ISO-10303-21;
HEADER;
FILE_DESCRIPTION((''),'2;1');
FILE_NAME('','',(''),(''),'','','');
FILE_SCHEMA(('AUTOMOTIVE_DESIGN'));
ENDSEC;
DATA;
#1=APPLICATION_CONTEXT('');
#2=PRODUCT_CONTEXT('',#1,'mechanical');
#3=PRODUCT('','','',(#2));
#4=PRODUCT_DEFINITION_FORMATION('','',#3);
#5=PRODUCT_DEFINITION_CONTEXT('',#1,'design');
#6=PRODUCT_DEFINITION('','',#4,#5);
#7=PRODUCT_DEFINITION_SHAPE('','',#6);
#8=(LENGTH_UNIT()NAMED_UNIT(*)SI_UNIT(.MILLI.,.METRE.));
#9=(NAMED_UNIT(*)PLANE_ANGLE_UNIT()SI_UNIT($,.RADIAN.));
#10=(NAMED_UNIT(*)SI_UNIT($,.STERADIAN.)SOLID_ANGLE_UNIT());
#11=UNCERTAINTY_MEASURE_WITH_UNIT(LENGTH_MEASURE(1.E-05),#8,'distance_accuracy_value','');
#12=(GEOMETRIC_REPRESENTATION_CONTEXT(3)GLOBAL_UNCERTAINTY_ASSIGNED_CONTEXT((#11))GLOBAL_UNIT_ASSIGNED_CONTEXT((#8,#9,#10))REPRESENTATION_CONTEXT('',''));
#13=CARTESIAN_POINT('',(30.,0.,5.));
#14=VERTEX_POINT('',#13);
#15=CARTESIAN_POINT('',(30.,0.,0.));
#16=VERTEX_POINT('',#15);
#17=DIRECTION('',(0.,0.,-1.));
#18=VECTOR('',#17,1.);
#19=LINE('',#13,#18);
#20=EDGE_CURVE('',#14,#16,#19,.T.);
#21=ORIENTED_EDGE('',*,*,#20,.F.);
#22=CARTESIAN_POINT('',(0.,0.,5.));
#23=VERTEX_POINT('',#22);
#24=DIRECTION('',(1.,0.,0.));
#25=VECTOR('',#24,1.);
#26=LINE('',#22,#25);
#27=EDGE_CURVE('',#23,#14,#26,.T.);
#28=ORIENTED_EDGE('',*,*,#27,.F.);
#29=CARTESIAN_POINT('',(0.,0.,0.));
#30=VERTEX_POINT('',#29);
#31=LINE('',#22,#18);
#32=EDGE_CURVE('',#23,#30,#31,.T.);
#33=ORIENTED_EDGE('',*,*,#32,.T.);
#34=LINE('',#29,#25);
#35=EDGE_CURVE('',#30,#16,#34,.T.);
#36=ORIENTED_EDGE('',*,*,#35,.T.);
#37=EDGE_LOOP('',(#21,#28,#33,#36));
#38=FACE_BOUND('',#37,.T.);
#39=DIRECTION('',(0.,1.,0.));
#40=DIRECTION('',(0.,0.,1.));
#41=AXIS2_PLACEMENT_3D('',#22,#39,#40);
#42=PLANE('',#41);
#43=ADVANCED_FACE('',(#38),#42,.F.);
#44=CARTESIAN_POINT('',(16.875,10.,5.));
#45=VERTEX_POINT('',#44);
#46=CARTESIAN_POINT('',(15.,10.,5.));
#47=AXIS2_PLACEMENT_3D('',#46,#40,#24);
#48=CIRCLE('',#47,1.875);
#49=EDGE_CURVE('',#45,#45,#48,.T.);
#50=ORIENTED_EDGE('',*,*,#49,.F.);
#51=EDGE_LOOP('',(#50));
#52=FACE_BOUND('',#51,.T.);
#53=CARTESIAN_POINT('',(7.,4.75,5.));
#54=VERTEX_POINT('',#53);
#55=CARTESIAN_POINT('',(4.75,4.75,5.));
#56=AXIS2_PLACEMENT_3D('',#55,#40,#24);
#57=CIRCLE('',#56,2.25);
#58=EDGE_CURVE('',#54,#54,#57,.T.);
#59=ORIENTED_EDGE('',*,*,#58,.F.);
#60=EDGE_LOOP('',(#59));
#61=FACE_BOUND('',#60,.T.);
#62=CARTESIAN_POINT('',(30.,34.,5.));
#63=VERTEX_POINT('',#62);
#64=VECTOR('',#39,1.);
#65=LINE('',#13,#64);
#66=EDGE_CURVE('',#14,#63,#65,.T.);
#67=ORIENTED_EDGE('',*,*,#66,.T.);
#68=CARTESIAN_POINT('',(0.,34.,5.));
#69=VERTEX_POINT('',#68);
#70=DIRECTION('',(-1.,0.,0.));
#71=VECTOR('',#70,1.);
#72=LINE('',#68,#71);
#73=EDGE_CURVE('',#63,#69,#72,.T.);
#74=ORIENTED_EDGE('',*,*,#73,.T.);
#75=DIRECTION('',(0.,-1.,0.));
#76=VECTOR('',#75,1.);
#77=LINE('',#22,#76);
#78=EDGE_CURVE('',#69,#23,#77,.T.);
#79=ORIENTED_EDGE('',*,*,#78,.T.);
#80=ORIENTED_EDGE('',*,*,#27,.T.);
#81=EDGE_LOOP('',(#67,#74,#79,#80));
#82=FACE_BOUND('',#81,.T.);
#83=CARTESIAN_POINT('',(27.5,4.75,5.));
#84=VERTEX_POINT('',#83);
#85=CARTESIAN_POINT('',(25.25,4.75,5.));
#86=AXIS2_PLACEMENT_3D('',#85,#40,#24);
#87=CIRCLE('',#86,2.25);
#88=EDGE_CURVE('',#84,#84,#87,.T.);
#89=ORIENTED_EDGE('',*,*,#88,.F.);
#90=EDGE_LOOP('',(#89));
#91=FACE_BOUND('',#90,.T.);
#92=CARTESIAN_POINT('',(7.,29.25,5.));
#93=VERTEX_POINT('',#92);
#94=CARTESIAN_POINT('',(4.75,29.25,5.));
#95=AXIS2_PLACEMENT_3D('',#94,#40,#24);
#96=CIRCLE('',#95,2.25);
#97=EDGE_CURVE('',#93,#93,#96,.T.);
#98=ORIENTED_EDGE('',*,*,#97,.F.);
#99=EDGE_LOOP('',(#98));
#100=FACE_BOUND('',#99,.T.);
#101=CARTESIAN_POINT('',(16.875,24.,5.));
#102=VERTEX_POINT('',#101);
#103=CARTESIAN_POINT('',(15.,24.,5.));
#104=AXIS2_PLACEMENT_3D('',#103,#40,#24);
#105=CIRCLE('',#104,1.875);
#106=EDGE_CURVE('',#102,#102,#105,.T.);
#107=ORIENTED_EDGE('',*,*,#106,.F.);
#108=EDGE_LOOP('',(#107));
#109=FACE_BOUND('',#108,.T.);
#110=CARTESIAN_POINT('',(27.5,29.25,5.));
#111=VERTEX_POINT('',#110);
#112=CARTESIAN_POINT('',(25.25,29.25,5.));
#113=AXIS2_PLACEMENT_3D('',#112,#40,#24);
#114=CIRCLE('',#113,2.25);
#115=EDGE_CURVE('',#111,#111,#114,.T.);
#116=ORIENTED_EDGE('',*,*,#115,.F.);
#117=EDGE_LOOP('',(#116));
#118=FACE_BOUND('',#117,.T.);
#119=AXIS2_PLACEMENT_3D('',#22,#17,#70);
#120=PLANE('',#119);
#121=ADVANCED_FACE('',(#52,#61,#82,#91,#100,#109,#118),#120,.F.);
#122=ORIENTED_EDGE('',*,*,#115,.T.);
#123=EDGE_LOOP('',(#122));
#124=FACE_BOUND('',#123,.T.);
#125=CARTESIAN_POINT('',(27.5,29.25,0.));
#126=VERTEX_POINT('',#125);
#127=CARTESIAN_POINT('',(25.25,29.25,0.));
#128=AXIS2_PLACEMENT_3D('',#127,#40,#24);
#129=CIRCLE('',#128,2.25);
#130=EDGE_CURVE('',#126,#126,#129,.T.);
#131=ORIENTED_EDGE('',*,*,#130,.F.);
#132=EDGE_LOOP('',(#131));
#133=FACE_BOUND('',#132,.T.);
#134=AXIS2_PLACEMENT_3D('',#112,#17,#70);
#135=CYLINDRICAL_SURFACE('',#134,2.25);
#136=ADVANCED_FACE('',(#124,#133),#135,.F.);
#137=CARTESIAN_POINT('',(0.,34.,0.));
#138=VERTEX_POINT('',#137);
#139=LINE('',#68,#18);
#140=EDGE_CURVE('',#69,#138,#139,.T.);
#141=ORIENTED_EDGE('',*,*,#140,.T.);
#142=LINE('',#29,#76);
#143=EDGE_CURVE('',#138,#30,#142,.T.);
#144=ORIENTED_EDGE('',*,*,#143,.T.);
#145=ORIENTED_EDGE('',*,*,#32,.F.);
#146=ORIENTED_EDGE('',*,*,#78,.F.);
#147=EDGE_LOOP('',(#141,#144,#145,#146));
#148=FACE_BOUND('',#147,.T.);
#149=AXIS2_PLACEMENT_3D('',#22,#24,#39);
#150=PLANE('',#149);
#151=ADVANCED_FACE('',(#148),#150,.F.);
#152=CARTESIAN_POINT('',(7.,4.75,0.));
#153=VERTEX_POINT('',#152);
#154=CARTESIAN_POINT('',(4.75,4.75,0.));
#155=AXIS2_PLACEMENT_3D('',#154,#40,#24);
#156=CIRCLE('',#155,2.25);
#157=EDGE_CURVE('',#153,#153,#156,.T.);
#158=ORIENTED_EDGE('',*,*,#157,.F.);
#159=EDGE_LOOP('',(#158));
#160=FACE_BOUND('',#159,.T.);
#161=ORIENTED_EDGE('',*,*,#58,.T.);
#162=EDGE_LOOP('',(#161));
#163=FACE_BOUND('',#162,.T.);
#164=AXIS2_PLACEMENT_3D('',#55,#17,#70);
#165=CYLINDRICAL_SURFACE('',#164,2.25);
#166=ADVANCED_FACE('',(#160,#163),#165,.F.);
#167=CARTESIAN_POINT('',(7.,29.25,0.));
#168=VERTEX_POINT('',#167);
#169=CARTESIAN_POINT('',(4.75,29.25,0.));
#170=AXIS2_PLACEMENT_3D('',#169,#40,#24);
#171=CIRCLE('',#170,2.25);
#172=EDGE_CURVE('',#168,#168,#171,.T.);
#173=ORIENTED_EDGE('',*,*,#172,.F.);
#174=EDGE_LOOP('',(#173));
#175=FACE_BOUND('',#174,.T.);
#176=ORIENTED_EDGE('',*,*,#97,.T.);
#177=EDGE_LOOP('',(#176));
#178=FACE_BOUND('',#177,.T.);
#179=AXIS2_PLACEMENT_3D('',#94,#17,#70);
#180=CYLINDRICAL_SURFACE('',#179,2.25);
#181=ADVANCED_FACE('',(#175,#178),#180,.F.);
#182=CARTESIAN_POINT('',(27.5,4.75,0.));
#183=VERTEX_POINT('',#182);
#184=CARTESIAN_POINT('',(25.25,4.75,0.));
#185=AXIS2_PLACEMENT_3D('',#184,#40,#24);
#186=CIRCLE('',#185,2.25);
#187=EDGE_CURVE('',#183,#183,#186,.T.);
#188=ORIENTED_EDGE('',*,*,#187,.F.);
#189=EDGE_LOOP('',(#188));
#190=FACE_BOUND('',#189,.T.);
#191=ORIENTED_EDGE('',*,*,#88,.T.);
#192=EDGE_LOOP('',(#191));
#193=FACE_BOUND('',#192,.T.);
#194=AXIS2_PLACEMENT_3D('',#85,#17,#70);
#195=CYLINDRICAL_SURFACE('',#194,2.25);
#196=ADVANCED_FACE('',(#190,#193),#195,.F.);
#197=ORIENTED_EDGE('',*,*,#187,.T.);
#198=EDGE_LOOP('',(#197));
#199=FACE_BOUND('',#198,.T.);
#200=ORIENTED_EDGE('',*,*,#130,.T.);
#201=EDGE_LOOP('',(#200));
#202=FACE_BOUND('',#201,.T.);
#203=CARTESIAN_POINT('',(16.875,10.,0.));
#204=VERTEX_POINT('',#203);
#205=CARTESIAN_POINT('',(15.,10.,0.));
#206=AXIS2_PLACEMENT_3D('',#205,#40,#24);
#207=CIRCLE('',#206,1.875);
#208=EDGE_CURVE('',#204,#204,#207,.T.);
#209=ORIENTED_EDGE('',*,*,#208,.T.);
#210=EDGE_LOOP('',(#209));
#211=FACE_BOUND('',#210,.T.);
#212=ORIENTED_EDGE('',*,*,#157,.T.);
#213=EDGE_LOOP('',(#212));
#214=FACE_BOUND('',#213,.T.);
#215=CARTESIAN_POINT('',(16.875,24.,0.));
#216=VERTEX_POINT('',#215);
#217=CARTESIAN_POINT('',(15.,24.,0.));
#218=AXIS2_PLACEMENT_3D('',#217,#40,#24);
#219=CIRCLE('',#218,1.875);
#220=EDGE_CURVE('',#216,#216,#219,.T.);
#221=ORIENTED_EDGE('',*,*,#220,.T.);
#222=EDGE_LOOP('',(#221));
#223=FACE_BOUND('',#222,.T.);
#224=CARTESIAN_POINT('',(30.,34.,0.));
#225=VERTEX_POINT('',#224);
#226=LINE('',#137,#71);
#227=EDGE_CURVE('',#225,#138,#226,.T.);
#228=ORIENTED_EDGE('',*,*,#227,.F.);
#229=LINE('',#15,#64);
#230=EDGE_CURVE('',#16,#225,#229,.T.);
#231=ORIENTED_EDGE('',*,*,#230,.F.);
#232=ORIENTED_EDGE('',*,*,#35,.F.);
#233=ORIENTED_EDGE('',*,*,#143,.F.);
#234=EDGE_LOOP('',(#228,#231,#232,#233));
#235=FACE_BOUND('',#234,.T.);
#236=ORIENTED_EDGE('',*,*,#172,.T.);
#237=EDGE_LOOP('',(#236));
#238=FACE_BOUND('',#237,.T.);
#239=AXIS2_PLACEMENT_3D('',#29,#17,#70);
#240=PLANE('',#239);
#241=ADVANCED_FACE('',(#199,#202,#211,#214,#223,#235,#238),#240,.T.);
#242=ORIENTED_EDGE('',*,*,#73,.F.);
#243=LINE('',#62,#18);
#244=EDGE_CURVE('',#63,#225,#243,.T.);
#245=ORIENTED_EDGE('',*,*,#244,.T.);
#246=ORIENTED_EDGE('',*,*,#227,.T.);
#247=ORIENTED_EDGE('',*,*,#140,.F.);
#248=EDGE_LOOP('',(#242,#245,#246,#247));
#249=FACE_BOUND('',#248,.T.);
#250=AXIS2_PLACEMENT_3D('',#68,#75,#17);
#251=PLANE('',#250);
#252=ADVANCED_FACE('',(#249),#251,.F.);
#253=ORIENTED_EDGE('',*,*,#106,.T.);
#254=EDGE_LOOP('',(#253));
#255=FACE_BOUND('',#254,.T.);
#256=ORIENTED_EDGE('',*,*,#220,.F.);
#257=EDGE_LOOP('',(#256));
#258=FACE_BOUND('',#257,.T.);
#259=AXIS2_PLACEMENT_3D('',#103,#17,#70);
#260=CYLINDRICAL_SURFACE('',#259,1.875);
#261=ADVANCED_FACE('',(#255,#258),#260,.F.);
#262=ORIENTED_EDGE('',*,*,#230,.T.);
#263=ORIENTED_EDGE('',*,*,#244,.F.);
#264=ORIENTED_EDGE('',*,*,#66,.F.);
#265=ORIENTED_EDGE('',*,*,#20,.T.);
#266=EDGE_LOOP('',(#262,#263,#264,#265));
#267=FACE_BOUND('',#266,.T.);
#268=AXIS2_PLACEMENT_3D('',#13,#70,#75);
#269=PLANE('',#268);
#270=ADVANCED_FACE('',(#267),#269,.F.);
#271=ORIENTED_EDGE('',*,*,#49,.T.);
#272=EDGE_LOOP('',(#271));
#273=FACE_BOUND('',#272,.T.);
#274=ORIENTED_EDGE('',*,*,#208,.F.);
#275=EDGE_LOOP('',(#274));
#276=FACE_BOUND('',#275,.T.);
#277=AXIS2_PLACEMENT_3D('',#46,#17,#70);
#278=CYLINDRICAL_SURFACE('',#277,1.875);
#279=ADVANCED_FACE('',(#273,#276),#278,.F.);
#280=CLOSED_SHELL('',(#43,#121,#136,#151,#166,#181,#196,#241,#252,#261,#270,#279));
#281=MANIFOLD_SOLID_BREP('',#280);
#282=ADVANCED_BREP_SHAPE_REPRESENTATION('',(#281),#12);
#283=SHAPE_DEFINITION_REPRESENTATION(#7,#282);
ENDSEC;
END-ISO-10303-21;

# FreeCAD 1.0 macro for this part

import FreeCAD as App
import Part
import Sketcher
from FreeCAD import Vector


def add_polygon(sketch, points):
    """Adds a closed chain of lines whose ends are joined by coincident constraints."""
    first, n = sketch.GeometryCount, len(points)
    for a, b in zip(points, points[1:] + points[:1]):
        sketch.addGeometry(Part.LineSegment(App.Vector(*a, 0), App.Vector(*b, 0)), False)
    for i in range(n):
        sketch.addConstraint(Sketcher.Constraint("Coincident", first + i, 2, first + (i + 1) % n, 1))

doc = App.newDocument("Part")
body = doc.addObject("PartDesign::Body", "Body")

sketch1 = body.newObject("Sketcher::SketchObject", "Sketch")
sketch1.AttachmentSupport = (doc.getObject("XY_Plane"), [""])
sketch1.MapMode = "FlatFace"
add_polygon(sketch1, [(0, 34), (0, 0), (30, 0), (30, 34)])
sketch1.addGeometry(Part.Circle(Vector(4.8, 4.8, 0), Vector(0, 0, 1), 2.2), False)
sketch1.addGeometry(Part.Circle(Vector(25.2, 4.8, 0), Vector(0, 0, 1), 2.2), False)
sketch1.addGeometry(Part.Circle(Vector(15, 10, 0), Vector(0, 0, 1), 1.9), False)
sketch1.addGeometry(Part.Circle(Vector(4.8, 29.2, 0), Vector(0, 0, 1), 2.2), False)
sketch1.addGeometry(Part.Circle(Vector(15, 24, 0), Vector(0, 0, 1), 1.9), False)
sketch1.addGeometry(Part.Circle(Vector(25.2, 29.2, 0), Vector(0, 0, 1), 2.2), False)
sketch1.addConstraint(Sketcher.Constraint("Vertical", 0))
sketch1.addConstraint(Sketcher.Constraint("Horizontal", 1))
sketch1.addConstraint(Sketcher.Constraint("Vertical", 2))
sketch1.addConstraint(Sketcher.Constraint("Horizontal", 3))
sketch1.addConstraint(Sketcher.Constraint("Coincident", 0, 2, -1, 1))
sketch1.addConstraint(Sketcher.Constraint("Equal", 4, 5))
sketch1.addConstraint(Sketcher.Constraint("Equal", 5, 7))
sketch1.addConstraint(Sketcher.Constraint("Equal", 6, 8))
sketch1.addConstraint(Sketcher.Constraint("Equal", 7, 9))
sketch1.addConstraint(Sketcher.Constraint("Horizontal", 4, 3, 5, 3))
sketch1.addConstraint(Sketcher.Constraint("Horizontal", 7, 3, 9, 3))
sketch1.addConstraint(Sketcher.Constraint("Vertical", 4, 3, 7, 3))
sketch1.addConstraint(Sketcher.Constraint("Vertical", 6, 3, 8, 3))
sketch1.addConstraint(Sketcher.Constraint("Vertical", 5, 3, 9, 3))
sketch1.addConstraint(Sketcher.Constraint("Diameter", 4, 4.5))
sketch1.addConstraint(Sketcher.Constraint("Diameter", 6, 3.75))
sketch1.addConstraint(Sketcher.Constraint("DistanceX", 1, 1, 1, 2, 30.0))
sketch1.addConstraint(Sketcher.Constraint("DistanceY", 0, 2, 0, 1, 34.0))
sketch1.addConstraint(Sketcher.Constraint("DistanceX", -1, 1, 6, 3, 15.0))
sketch1.addConstraint(Sketcher.Constraint("DistanceY", -1, 1, 6, 3, 10.0))
sketch1.addConstraint(Sketcher.Constraint("DistanceY", -1, 1, 8, 3, 24.0))
sketch1.addConstraint(Sketcher.Constraint("DistanceX", 4, 3, 5, 3, 20.5))
sketch1.addConstraint(Sketcher.Constraint("DistanceY", 4, 3, 7, 3, 24.5))
sketch1.addConstraint(Sketcher.Constraint("DistanceX", -1, 1, 4, 3, 4.75))
sketch1.addConstraint(Sketcher.Constraint("DistanceY", -1, 1, 4, 3, 4.75))
pad1 = body.newObject("PartDesign::Pad", "Pad")
pad1.Profile = sketch1
pad1.Length = 5

doc.recompute()
